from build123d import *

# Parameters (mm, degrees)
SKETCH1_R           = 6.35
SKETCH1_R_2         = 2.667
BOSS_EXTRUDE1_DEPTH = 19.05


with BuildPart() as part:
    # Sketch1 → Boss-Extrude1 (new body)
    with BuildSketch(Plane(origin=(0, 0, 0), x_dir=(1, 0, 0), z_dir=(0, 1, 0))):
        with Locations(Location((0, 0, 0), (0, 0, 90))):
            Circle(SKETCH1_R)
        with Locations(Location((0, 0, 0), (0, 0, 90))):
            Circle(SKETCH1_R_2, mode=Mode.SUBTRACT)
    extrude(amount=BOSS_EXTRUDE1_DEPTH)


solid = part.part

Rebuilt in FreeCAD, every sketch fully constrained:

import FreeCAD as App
import Part
import Sketcher

V = App.Vector
Q = App.Units.Quantity

doc = App.newDocument("Part")
body = doc.addObject("PartDesign::Body", "Body")

sketch1 = body.newObject("Sketcher::SketchObject", "Sketch")
sketch1.AttachmentSupport = (doc.getObject("XZ_Plane"), [""])
sketch1.MapMode = "FlatFace"
sketch1.addGeometry([
    Part.Circle(V(0, 0, 0), V(0, 0, 1), 6.3),
    Part.Circle(V(0, 0, 0), V(0, 0, 1), 2.7),
], False)
sketch1.addConstraint([
    Sketcher.Constraint("Coincident", 0, 3, -1, 1),
    Sketcher.Constraint("Coincident", 1, 3, -1, 1),
    Sketcher.Constraint("Diameter", 0, Q("0.5 in")),
    Sketcher.Constraint("Diameter", 1, Q("0.21 in")),
])
pad1 = body.newObject("PartDesign::Pad", "Pad")
pad1.Profile = sketch1
pad1.Length = Q("0.75 in")
pad1.Reversed = True

doc.recompute()
